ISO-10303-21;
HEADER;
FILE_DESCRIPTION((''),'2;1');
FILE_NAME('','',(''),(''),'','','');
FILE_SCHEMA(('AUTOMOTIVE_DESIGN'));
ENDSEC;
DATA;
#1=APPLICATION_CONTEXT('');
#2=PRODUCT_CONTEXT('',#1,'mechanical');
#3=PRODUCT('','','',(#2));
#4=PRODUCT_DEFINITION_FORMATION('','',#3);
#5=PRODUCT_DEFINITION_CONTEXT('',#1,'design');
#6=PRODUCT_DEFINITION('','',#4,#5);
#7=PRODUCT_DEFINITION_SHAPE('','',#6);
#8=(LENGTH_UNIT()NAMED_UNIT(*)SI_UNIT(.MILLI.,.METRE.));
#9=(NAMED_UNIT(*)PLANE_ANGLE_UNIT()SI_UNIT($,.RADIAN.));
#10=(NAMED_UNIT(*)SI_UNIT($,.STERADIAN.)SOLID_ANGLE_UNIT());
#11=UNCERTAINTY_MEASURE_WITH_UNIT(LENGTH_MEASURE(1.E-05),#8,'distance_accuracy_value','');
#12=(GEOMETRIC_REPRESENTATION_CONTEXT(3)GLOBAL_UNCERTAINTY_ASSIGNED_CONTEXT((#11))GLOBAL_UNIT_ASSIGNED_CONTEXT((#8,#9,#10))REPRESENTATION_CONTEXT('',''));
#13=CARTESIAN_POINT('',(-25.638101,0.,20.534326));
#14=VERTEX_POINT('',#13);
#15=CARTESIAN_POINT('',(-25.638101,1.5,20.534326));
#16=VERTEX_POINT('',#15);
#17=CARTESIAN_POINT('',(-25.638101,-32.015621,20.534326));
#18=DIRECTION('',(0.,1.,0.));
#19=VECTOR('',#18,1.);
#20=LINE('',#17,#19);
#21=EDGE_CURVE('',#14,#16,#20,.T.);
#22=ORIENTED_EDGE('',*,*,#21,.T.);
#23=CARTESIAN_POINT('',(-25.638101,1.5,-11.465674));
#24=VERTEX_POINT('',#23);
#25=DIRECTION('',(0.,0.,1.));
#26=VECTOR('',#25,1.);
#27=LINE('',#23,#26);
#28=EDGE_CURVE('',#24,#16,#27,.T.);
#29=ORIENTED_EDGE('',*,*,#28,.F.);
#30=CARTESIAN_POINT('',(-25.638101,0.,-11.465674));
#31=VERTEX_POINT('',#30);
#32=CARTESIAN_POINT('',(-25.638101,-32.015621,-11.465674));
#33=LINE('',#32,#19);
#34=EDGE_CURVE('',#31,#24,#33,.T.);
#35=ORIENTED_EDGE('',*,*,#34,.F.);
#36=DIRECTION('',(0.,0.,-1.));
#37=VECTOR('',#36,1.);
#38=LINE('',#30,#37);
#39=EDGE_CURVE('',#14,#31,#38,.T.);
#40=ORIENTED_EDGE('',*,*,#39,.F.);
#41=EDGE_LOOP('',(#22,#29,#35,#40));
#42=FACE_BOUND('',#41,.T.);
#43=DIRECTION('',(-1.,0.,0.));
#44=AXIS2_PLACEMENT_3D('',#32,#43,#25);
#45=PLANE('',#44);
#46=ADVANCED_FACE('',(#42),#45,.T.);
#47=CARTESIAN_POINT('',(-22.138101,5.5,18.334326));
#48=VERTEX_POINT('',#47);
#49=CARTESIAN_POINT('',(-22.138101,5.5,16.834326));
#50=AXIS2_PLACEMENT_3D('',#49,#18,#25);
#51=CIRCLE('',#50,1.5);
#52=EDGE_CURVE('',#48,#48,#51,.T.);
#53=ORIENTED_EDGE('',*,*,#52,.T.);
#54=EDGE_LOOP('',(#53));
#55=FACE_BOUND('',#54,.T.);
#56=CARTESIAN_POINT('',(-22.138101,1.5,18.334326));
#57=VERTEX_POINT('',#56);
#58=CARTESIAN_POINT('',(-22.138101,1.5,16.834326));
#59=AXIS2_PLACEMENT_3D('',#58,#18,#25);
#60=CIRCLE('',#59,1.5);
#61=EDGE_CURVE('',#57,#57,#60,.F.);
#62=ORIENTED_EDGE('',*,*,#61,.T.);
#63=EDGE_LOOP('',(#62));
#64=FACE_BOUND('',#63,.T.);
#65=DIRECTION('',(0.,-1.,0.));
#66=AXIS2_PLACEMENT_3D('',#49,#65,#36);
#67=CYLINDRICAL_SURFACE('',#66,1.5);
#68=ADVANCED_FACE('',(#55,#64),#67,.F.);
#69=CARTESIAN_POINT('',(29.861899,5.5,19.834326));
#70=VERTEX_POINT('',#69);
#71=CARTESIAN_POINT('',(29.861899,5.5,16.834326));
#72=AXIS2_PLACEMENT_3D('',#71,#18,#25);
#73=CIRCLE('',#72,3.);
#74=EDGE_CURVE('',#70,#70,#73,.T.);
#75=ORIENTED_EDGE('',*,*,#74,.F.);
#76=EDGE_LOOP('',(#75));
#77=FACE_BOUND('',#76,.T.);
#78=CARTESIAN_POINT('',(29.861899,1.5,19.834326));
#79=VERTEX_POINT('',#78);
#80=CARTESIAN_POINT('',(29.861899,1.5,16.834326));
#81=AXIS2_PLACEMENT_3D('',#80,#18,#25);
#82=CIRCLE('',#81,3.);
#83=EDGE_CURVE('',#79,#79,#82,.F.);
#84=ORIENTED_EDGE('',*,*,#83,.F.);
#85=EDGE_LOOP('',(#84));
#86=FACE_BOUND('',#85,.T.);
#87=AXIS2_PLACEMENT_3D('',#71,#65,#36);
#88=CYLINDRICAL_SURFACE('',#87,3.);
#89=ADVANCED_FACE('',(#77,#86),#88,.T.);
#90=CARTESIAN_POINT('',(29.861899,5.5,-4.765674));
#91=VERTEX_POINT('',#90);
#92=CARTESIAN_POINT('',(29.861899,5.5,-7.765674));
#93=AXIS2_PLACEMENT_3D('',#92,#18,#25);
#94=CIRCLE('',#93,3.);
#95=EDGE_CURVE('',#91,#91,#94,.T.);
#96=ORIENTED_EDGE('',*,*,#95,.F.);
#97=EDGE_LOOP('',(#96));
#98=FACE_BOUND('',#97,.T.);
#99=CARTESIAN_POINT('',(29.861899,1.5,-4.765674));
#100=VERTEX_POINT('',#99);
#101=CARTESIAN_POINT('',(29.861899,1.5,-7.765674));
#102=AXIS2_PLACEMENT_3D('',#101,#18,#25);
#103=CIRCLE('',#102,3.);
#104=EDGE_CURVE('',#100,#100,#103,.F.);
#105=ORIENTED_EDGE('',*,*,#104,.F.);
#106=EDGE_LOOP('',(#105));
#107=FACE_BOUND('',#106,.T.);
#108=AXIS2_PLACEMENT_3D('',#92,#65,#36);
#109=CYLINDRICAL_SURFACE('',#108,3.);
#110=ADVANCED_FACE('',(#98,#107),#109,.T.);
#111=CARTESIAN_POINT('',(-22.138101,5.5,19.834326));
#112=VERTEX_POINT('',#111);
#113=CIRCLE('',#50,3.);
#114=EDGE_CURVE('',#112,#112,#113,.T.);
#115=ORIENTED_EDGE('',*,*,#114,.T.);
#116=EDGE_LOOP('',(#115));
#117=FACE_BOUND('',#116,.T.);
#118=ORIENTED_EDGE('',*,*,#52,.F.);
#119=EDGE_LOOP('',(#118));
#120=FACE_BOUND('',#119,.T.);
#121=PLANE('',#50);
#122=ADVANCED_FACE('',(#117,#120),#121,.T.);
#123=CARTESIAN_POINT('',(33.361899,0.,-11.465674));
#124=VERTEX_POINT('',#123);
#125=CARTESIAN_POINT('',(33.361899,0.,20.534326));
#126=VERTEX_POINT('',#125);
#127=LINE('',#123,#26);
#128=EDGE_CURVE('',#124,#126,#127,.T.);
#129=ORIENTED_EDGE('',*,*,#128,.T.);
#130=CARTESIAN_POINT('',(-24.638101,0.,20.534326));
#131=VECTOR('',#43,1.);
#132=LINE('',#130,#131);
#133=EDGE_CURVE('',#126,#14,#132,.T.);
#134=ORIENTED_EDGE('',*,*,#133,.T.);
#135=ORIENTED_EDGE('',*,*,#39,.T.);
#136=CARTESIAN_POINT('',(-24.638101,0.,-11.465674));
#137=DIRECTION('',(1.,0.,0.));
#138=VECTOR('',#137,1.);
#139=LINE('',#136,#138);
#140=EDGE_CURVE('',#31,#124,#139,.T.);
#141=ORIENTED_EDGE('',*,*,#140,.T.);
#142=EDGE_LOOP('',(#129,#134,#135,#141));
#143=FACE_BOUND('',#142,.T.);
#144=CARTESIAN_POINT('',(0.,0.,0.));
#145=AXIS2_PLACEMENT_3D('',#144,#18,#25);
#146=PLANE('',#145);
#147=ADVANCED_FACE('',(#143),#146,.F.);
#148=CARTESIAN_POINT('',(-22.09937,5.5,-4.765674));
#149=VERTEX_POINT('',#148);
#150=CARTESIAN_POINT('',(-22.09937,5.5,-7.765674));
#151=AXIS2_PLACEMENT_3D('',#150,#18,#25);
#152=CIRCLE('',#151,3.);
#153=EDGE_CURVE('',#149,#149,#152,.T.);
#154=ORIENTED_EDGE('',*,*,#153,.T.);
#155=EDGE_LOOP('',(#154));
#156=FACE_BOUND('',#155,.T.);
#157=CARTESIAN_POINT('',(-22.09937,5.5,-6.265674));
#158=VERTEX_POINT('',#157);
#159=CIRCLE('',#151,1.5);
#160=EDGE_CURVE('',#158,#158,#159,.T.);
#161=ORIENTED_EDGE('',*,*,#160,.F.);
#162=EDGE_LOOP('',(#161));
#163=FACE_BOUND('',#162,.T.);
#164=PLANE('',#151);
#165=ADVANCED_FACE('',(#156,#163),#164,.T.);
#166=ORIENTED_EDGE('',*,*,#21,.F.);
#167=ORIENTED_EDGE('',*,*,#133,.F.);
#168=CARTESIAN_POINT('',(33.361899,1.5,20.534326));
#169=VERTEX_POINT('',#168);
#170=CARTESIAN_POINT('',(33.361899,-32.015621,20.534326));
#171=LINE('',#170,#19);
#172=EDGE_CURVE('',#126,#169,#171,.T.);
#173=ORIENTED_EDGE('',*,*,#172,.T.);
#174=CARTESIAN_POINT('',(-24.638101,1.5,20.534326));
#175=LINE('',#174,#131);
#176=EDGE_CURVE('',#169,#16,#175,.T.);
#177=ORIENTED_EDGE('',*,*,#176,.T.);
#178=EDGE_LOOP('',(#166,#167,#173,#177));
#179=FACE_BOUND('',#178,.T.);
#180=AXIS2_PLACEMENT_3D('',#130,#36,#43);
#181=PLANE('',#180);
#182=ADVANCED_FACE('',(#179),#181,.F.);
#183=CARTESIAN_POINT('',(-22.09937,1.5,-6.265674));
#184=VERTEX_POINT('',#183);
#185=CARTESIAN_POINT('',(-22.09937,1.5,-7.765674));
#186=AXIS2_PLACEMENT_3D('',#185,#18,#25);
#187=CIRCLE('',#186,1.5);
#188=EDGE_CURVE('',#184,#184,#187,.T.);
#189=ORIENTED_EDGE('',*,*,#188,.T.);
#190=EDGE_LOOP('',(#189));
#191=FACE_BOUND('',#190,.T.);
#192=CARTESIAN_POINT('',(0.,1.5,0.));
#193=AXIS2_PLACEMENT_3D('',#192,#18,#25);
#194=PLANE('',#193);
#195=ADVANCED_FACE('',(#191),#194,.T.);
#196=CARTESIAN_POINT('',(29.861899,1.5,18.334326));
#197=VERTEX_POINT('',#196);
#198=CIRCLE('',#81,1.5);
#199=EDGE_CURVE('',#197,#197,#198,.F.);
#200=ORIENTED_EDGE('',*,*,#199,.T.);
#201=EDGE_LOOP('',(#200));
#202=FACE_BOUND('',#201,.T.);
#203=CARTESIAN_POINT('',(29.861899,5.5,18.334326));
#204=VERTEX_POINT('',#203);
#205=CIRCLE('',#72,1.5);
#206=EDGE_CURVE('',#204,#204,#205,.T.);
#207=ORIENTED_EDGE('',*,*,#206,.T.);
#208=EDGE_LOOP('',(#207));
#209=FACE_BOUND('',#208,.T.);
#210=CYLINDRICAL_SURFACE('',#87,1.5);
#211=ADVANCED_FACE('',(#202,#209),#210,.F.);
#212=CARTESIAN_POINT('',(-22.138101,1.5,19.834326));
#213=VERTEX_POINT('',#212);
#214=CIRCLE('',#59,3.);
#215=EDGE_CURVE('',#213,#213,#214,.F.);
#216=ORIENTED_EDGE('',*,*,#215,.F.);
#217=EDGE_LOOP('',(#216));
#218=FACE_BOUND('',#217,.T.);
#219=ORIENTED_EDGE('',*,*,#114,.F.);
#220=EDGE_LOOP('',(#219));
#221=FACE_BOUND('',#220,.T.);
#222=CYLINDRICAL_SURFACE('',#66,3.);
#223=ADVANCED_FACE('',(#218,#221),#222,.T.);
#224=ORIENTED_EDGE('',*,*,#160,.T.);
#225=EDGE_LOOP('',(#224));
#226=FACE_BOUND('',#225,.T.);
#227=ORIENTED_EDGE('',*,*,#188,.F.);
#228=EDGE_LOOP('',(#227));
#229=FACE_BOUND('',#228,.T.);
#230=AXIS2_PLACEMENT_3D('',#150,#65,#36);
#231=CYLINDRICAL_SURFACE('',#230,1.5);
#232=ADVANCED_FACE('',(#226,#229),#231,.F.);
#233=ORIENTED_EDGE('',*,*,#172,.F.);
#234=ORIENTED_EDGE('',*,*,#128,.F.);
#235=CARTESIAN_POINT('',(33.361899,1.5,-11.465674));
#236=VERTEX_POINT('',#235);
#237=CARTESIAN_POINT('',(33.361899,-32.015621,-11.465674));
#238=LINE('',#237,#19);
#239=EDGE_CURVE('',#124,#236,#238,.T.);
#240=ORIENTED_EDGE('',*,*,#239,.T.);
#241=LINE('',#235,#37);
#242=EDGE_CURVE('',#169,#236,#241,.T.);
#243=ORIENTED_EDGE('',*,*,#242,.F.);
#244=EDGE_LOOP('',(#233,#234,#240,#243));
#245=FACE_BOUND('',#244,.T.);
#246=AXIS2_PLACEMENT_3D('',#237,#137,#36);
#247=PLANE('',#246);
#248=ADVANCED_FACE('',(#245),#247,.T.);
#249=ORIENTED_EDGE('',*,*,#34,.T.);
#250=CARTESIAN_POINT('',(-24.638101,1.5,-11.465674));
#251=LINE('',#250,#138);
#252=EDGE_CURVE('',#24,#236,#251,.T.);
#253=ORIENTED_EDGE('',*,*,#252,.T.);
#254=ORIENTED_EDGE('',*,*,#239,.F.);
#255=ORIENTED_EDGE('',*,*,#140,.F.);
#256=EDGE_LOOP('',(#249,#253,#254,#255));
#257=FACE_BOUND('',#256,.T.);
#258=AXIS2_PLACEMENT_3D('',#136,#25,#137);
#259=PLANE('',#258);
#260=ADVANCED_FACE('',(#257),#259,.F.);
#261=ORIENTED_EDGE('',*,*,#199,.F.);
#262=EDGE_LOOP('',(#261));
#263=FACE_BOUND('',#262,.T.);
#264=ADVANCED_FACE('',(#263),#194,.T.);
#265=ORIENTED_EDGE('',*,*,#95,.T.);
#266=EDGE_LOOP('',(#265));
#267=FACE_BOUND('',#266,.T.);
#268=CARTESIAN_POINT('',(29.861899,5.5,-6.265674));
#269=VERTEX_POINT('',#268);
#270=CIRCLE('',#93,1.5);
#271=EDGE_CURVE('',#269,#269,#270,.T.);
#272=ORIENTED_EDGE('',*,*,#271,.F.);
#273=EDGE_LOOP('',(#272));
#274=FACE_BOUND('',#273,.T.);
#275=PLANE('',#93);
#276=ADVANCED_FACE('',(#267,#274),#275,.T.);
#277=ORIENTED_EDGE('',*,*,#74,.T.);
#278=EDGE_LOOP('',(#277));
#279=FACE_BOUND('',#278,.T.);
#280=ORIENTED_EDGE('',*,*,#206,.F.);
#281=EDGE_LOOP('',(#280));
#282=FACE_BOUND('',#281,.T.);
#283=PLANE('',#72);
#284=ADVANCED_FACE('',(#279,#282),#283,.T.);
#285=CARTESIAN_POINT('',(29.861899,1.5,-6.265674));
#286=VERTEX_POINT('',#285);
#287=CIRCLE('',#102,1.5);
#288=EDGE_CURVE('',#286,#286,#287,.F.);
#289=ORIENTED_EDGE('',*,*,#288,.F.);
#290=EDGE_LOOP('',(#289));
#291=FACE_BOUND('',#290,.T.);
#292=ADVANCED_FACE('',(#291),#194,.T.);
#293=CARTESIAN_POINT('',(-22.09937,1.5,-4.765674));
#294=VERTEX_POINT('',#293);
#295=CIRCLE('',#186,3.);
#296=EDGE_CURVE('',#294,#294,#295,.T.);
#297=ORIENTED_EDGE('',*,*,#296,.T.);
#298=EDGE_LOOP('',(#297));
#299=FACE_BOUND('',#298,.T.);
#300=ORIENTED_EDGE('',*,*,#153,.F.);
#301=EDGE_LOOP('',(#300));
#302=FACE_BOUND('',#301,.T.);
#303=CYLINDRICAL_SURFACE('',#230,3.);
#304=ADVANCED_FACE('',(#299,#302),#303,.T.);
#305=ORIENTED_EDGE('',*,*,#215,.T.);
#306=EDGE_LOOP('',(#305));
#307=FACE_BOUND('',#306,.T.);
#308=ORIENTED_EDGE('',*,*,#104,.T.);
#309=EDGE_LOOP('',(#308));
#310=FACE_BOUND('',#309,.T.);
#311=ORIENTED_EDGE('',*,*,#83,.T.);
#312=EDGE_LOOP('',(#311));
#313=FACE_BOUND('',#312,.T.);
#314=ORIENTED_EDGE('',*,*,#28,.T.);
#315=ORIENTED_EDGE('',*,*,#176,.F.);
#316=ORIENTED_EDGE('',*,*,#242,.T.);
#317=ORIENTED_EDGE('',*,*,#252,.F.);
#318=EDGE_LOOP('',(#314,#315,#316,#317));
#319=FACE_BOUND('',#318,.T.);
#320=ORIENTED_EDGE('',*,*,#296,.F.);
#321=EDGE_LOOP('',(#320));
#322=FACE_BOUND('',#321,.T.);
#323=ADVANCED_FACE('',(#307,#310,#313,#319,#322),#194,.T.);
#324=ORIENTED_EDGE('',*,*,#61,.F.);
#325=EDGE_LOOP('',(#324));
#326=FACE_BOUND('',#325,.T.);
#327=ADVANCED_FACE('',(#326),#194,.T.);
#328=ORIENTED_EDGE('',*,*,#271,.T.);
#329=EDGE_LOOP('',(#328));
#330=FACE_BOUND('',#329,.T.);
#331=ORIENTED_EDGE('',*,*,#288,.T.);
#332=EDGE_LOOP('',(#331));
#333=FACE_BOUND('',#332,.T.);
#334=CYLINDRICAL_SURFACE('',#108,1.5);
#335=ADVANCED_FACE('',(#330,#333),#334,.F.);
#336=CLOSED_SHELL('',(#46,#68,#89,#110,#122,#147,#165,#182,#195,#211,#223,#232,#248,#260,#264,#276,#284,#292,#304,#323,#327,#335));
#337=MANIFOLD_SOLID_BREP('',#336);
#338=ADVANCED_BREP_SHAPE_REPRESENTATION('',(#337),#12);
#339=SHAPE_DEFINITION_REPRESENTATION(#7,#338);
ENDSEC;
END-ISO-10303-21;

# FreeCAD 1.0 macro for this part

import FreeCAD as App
import Part
import Sketcher
from FreeCAD import Vector

doc = App.newDocument("Part")
params = doc.addObject("Spreadsheet::Sheet", "Params")
for row, (alias, value) in enumerate([
    ("sketch1_width", "57 mm"),
    ("sketch1_height", "40.4 mm"),
    ("pad1_length", "1.5 mm"),
    ("sketch2_diameter", "6 mm"),
    ("sketch2_diameter2", "3 mm"),
    ("pad2_length", "4 mm"),
    ("sketch3_width", "57 mm"),
    ("sketch3_height", "4.2 mm"),
    ("sketch4_width", "1 mm"),
    ("sketch4_height", "32 mm"),
    ("pad3_length", "1.5 mm"),
], start=1):
    params.set(f"A{row}", alias)
    params.set(f"B{row}", "=" + value)
    params.setAlias(f"B{row}", alias)

body = doc.addObject("PartDesign::Body", "Body")

# Sketch on XZ plane
sketch1 = doc.addObject("Sketcher::SketchObject", "Sketch")
body.addObject(sketch1)
sketch1.AttachmentSupport = (doc.XZ_Plane, [""])
sketch1.MapMode = "FlatFace"
sketch1.addGeometry([
    Part.LineSegment(Vector(-25, -16, 0), Vector(-25, 25, 0)),
    Part.LineSegment(Vector(-25, 25, 0), Vector(32, 25, 0)),
    Part.LineSegment(Vector(32, 25, 0), Vector(32, -16, 0)),
    Part.LineSegment(Vector(32, -16, 0), Vector(-25, -16, 0)),
], False)
sketch1.addConstraint([
    Sketcher.Constraint("Coincident", 0, 2, 1, 1),
    Sketcher.Constraint("Coincident", 1, 2, 2, 1),
    Sketcher.Constraint("Coincident", 2, 2, 3, 1),
    Sketcher.Constraint("Coincident", 3, 2, 0, 1),
    Sketcher.Constraint("Vertical", 0),
    Sketcher.Constraint("Horizontal", 1),
    Sketcher.Constraint("Vertical", 2),
    Sketcher.Constraint("Horizontal", 3),
    Sketcher.Constraint("DistanceX", 1, 1, 1, 2, 57.0),
    Sketcher.Constraint("DistanceY", 0, 1, 0, 2, 40.4),
    Sketcher.Constraint("DistanceX", 0, 2, -1, 1, 24.638101),
    Sketcher.Constraint("DistanceY", -1, 1, 0, 2, 24.734326),
])
sketch1.setExpression("Constraints[8]", "Params.sketch1_width")
sketch1.setExpression("Constraints[9]", "Params.sketch1_height")
pad1 = doc.addObject("PartDesign::Pad", "Pad")
body.addObject(pad1)
pad1.Profile = sketch1
pad1.setExpression("Length", "Params.pad1_length")
pad1.Reversed = True

# Sketch on XZ plane
sketch2 = doc.addObject("Sketcher::SketchObject", "Sketch001")
body.addObject(sketch2)
sketch2.AttachmentSupport = (doc.XZ_Plane, [""])
sketch2.MapMode = "FlatFace"
sketch2.AttachmentOffset = App.Placement(Vector(0, 0, -1.5), App.Rotation())
sketch2.addGeometry([
    Part.Circle(Vector(-22.1, -7.8, 0), Vector(0, 0, 1), 3),  # 0
    Part.Circle(Vector(-22.1, -7.8, 0), Vector(0, 0, 1), 1.5),  # 1
    Part.Circle(Vector(-22.1, 16.8, 0), Vector(0, 0, 1), 3),  # 2
    Part.Circle(Vector(-22.1, 16.8, 0), Vector(0, 0, 1), 1.5),  # 3
    Part.Circle(Vector(29.9, 16.8, 0), Vector(0, 0, 1), 3),  # 4
    Part.Circle(Vector(29.9, 16.8, 0), Vector(0, 0, 1), 1.5),  # 5
    Part.Circle(Vector(29.9, -7.8, 0), Vector(0, 0, 1), 3),  # 6
    Part.Circle(Vector(29.9, -7.8, 0), Vector(0, 0, 1), 1.5),  # 7
], False)
sketch2.addConstraint([
    Sketcher.Constraint("Coincident", 1, 3, 0, 3),
    Sketcher.Constraint("Coincident", 3, 3, 2, 3),
    Sketcher.Constraint("Coincident", 5, 3, 4, 3),
    Sketcher.Constraint("Coincident", 7, 3, 6, 3),
    Sketcher.Constraint("Equal", 0, 2),
    Sketcher.Constraint("Equal", 1, 3),
    Sketcher.Constraint("Equal", 2, 4),
    Sketcher.Constraint("Equal", 3, 5),
    Sketcher.Constraint("Equal", 4, 6),
    Sketcher.Constraint("Equal", 5, 7),
    Sketcher.Constraint("Horizontal", 3, 3, 4, 3),
    Sketcher.Constraint("Horizontal", 1, 3, 6, 3),
    Sketcher.Constraint("Vertical", 5, 3, 6, 3),
    Sketcher.Constraint("Diameter", 0, 6.0),
    Sketcher.Constraint("Diameter", 1, 3.0),
    Sketcher.Constraint("DistanceX", 2, 3, 4, 3, 52.0),
    Sketcher.Constraint("DistanceY", 0, 3, 2, 3, 24.6),
    Sketcher.Constraint("DistanceX", 2, 3, -1, 1, 22.138101),
    Sketcher.Constraint("DistanceX", 0, 3, -1, 1, 22.09937),
    Sketcher.Constraint("DistanceY", 0, 3, -1, 1, 7.765674),
])
sketch2.setExpression("Constraints[13]", "Params.sketch2_diameter")
sketch2.setExpression("Constraints[14]", "Params.sketch2_diameter2")
pad2 = doc.addObject("PartDesign::Pad", "Pad001")
body.addObject(pad2)
pad2.Profile = sketch2
pad2.setExpression("Length", "Params.pad2_length")
pad2.Reversed = True

# Sketch on XZ plane
sketch3 = doc.addObject("Sketcher::SketchObject", "Sketch002")
body.addObject(sketch3)
sketch3.AttachmentSupport = (doc.XZ_Plane, [""])
sketch3.MapMode = "FlatFace"
sketch3.AttachmentOffset = App.Placement(Vector(0, 0, -1.5), App.Rotation())
sketch3.addGeometry([
    Part.LineSegment(Vector(-24.6, -15.7, 0), Vector(-24.6, -11.5, 0)),  # 0
    Part.LineSegment(Vector(-24.6, -11.5, 0), Vector(32.4, -11.5, 0)),  # 1
    Part.LineSegment(Vector(32.4, -11.5, 0), Vector(32.4, -15.7, 0)),  # 2
    Part.LineSegment(Vector(32.4, -15.7, 0), Vector(-24.6, -15.7, 0)),  # 3
    Part.LineSegment(Vector(-24.6, 20.5, 0), Vector(-24.6, 24.7, 0)),  # 4
    Part.LineSegment(Vector(-24.6, 24.7, 0), Vector(32.4, 24.7, 0)),  # 5
    Part.LineSegment(Vector(32.4, 24.7, 0), Vector(32.4, 20.5, 0)),  # 6
    Part.LineSegment(Vector(32.4, 20.5, 0), Vector(-24.6, 20.5, 0)),  # 7
], False)
sketch3.addConstraint([
    Sketcher.Constraint("Coincident", 0, 2, 1, 1),
    Sketcher.Constraint("Coincident", 1, 2, 2, 1),
    Sketcher.Constraint("Coincident", 2, 2, 3, 1),
    Sketcher.Constraint("Coincident", 3, 2, 0, 1),
    Sketcher.Constraint("Coincident", 4, 2, 5, 1),
    Sketcher.Constraint("Coincident", 5, 2, 6, 1),
    Sketcher.Constraint("Coincident", 6, 2, 7, 1),
    Sketcher.Constraint("Coincident", 7, 2, 4, 1),
    Sketcher.Constraint("Vertical", 0),
    Sketcher.Constraint("Horizontal", 1),
    Sketcher.Constraint("Vertical", 2),
    Sketcher.Constraint("Horizontal", 3),
    Sketcher.Constraint("Vertical", 4),
    Sketcher.Constraint("Horizontal", 5),
    Sketcher.Constraint("Vertical", 6),
    Sketcher.Constraint("Horizontal", 7),
    Sketcher.Constraint("Vertical", 3, 2, 4, 2),
    Sketcher.Constraint("Vertical", 2, 2, 5, 2),
    Sketcher.Constraint("Equal", 2, 4),
    Sketcher.Constraint("DistanceX", 1, 1, 1, 2, 57.0),
    Sketcher.Constraint("DistanceY", 0, 1, 0, 2, 4.2),
    Sketcher.Constraint("DistanceY", 1, 2, 6, 2, 32.0),
    Sketcher.Constraint("DistanceX", 0, 2, -1, 1, 24.638101),
    Sketcher.Constraint("DistanceY", 0, 2, -1, 1, 11.465674),
])
sketch3.setExpression("Constraints[19]", "Params.sketch3_width")
sketch3.setExpression("Constraints[20]", "Params.sketch3_height")
pocket1 = doc.addObject("PartDesign::Pocket", "Pocket")
body.addObject(pocket1)
pocket1.Profile = sketch3
pocket1.Type = "ThroughAll"
pocket1.Reversed = True

# Sketch on XZ plane
sketch4 = doc.addObject("Sketcher::SketchObject", "Sketch003")
body.addObject(sketch4)
sketch4.AttachmentSupport = (doc.XZ_Plane, [""])
sketch4.MapMode = "FlatFace"
sketch4.AttachmentOffset = App.Placement(Vector(0, 0, -1.5), App.Rotation())
sketch4.addGeometry([
    Part.LineSegment(Vector(-25.6, -11.5, 0), Vector(-25.6, 20.5, 0)),  # 0
    Part.LineSegment(Vector(-25.6, 20.5, 0), Vector(-24.6, 20.5, 0)),  # 1
    Part.LineSegment(Vector(-24.6, 20.5, 0), Vector(-24.6, -11.5, 0)),  # 2
    Part.LineSegment(Vector(-24.6, -11.5, 0), Vector(-25.6, -11.5, 0)),  # 3
    Part.LineSegment(Vector(32.4, -11.5, 0), Vector(32.4, 20.5, 0)),  # 4
    Part.LineSegment(Vector(32.4, 20.5, 0), Vector(33.4, 20.5, 0)),  # 5
    Part.LineSegment(Vector(33.4, 20.5, 0), Vector(33.4, -11.5, 0)),  # 6
    Part.LineSegment(Vector(33.4, -11.5, 0), Vector(32.4, -11.5, 0)),  # 7
], False)
sketch4.addConstraint([
    Sketcher.Constraint("Coincident", 0, 2, 1, 1),
    Sketcher.Constraint("Coincident", 1, 2, 2, 1),
    Sketcher.Constraint("Coincident", 2, 2, 3, 1),
    Sketcher.Constraint("Coincident", 3, 2, 0, 1),
    Sketcher.Constraint("Coincident", 4, 2, 5, 1),
    Sketcher.Constraint("Coincident", 5, 2, 6, 1),
    Sketcher.Constraint("Coincident", 6, 2, 7, 1),
    Sketcher.Constraint("Coincident", 7, 2, 4, 1),
    Sketcher.Constraint("Vertical", 0),
    Sketcher.Constraint("Horizontal", 1),
    Sketcher.Constraint("Vertical", 2),
    Sketcher.Constraint("Horizontal", 3),
    Sketcher.Constraint("Vertical", 4),
    Sketcher.Constraint("Horizontal", 5),
    Sketcher.Constraint("Vertical", 6),
    Sketcher.Constraint("Horizontal", 7),
    Sketcher.Constraint("Horizontal", 1, 2, 4, 2),
    Sketcher.Constraint("Horizontal", 3, 2, 6, 2),
    Sketcher.Constraint("Equal", 3, 5),
    Sketcher.Constraint("DistanceX", 1, 1, 1, 2, 1.0),
    Sketcher.Constraint("DistanceY", 0, 1, 0, 2, 32.0),
    Sketcher.Constraint("DistanceX", 1, 2, 4, 2, 57.0),
    Sketcher.Constraint("DistanceX", 0, 2, -1, 1, 25.638101),
    Sketcher.Constraint("DistanceY", -1, 1, 0, 2, 20.534326),
])
sketch4.setExpression("Constraints[19]", "Params.sketch4_width")
sketch4.setExpression("Constraints[20]", "Params.sketch4_height")
pad3 = doc.addObject("PartDesign::Pad", "Pad002")
body.addObject(pad3)
pad3.Profile = sketch4
pad3.setExpression("Length", "Params.pad3_length")

doc.recompute()
